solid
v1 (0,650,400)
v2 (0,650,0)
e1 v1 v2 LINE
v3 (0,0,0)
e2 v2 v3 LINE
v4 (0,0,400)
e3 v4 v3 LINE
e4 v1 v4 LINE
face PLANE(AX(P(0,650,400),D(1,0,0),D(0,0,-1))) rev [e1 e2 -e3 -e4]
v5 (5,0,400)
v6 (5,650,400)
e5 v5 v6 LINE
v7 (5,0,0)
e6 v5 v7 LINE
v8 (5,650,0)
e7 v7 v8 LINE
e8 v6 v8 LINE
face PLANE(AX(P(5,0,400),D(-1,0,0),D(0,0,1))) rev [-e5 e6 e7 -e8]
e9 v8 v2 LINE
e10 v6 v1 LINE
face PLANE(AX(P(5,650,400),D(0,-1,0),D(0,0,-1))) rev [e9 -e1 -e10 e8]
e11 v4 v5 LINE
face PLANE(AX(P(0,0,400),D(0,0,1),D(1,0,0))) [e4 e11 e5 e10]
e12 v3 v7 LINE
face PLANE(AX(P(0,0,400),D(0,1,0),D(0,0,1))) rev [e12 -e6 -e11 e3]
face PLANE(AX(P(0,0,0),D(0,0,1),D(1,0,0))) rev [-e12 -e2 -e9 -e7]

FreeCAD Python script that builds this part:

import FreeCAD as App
import Part
import Sketcher

V = App.Vector
Q = App.Units.Quantity

doc = App.newDocument("Part")
body = doc.addObject("PartDesign::Body", "Body")

# Sketch on XY plane
sketch1 = body.newObject("Sketcher::SketchObject", "Sketch")
sketch1.AttachmentSupport = (doc.getObject("XY_Plane"), [""])
sketch1.MapMode = "FlatFace"
sketch1.addGeometry([
    Part.LineSegment(V(0, 650, 0), V(0, 0, 0)),
    Part.LineSegment(V(0, 0, 0), V(5, 0, 0)),
    Part.LineSegment(V(5, 0, 0), V(5, 650, 0)),
    Part.LineSegment(V(5, 650, 0), V(0, 650, 0)),
], False)
sketch1.addConstraint([
    Sketcher.Constraint("Coincident", 0, 2, 1, 1),
    Sketcher.Constraint("Coincident", 1, 2, 2, 1),
    Sketcher.Constraint("Coincident", 2, 2, 3, 1),
    Sketcher.Constraint("Coincident", 3, 2, 0, 1),
    Sketcher.Constraint("Vertical", 0),
    Sketcher.Constraint("Horizontal", 1),
    Sketcher.Constraint("Vertical", 2),
    Sketcher.Constraint("Horizontal", 3),
    Sketcher.Constraint("Coincident", 0, 2, -1, 1),
    Sketcher.Constraint("DistanceX", 1, 1, 1, 2, Q("5 mm")),
    Sketcher.Constraint("DistanceY", 0, 2, 0, 1, Q("650 mm")),
])
pad1 = body.newObject("PartDesign::Pad", "Pad")
pad1.Profile = sketch1
pad1.Length = 400

doc.recompute()
